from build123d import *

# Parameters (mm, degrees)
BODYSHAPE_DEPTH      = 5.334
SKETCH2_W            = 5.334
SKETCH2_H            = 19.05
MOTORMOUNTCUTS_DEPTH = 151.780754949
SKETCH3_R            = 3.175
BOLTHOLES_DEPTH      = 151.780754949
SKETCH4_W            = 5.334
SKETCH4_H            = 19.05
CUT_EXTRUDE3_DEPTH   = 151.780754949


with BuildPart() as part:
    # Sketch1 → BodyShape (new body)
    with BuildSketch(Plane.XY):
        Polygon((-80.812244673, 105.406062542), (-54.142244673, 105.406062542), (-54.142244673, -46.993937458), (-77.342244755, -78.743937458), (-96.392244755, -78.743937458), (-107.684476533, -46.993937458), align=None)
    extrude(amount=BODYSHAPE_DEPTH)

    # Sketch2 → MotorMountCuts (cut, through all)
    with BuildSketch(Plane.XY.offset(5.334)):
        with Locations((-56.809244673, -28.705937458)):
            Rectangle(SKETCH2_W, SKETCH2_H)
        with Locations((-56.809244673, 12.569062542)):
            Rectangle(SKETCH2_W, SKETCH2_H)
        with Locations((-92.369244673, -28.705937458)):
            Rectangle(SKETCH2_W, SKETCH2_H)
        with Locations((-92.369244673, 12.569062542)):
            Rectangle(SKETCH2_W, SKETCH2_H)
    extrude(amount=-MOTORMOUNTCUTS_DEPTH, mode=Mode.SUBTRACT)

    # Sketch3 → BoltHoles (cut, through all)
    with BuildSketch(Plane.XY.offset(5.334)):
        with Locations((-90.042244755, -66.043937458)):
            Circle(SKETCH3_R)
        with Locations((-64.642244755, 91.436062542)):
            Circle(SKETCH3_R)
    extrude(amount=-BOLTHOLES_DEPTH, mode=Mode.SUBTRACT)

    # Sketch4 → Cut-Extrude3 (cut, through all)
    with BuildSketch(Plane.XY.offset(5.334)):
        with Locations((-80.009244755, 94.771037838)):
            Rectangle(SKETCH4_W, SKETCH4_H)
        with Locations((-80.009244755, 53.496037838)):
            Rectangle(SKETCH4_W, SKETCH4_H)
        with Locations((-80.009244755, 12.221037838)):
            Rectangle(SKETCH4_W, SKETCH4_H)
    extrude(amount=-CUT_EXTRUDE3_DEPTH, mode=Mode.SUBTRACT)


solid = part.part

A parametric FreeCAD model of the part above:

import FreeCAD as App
import Part
import Sketcher
Q = App.Units.Quantity

doc = App.newDocument("Part")
body = doc.addObject("PartDesign::Body", "Body")

sketch1 = body.newObject("Sketcher::SketchObject", "Sketch")
sketch1.AttachmentSupport = (doc.getObject("XY_Plane"), [""])
sketch1.MapMode = "FlatFace"
sketch1.addGeometry([
    Part.LineSegment(App.Vector(-54, 105, 0), App.Vector(-81, 105, 0)),
    Part.LineSegment(App.Vector(-81, 105, 0), App.Vector(-108, -47, 0)),
    Part.LineSegment(App.Vector(-108, -47, 0), App.Vector(-96, -79, 0)),
    Part.LineSegment(App.Vector(-96, -79, 0), App.Vector(-77, -79, 0)),
    Part.LineSegment(App.Vector(-77, -79, 0), App.Vector(-54, -47, 0)),
    Part.LineSegment(App.Vector(-54, -47, 0), App.Vector(-54, 105, 0)),
], False)
sketch1.addConstraint([
    Sketcher.Constraint("Coincident", 0, 2, 1, 1),
    Sketcher.Constraint("Coincident", 1, 2, 2, 1),
    Sketcher.Constraint("Coincident", 2, 2, 3, 1),
    Sketcher.Constraint("Coincident", 3, 2, 4, 1),
    Sketcher.Constraint("Coincident", 4, 2, 5, 1),
    Sketcher.Constraint("Coincident", 5, 2, 0, 1),
    Sketcher.Constraint("Horizontal", 0),
    Sketcher.Constraint("Horizontal", 3),
    Sketcher.Constraint("Vertical", 5),
    Sketcher.Constraint("Horizontal", 1, 2, 4, 2),
    Sketcher.Constraint("DistanceY", 5, 1, 5, 2, Q("6 in")),
    Sketcher.Constraint("Angle", 1, Q("-100 deg")),
    Sketcher.Constraint("DistanceX", 0, 2, 0, 1, Q("1.05 in")),
    Sketcher.Constraint("DistanceX", 3, 1, 3, 2, Q("0.75 in")),
    Sketcher.Constraint("DistanceY", 2, 2, 1, 2, Q("1.25 in")),
    Sketcher.Constraint("DistanceX", 2, 2, 0, 2, Q("15.58 mm")),
    Sketcher.Constraint("DistanceX", 0, 2, -1, 1, Q("80.812245 mm")),
    Sketcher.Constraint("DistanceY", -1, 1, 0, 2, Q("105.406063 mm")),
])
pad1 = body.newObject("PartDesign::Pad", "Pad")
pad1.Profile = sketch1
pad1.Length = Q("0.21 in")

sketch2 = body.newObject("Sketcher::SketchObject", "Sketch001")
sketch2.AttachmentSupport = (doc.getObject("XY_Plane"), [""])
sketch2.MapMode = "FlatFace"
sketch2.AttachmentOffset = App.Placement(App.Vector(0, 0, 0.21 * 25.4), App.Rotation())
sketch2.addGeometry([
    Part.LineSegment(App.Vector(-59, -19, 0), App.Vector(-59, -38, 0)),
    Part.LineSegment(App.Vector(-59, -38, 0), App.Vector(-54, -38, 0)),
    Part.LineSegment(App.Vector(-54, -38, 0), App.Vector(-54, -19, 0)),
    Part.LineSegment(App.Vector(-54, -19, 0), App.Vector(-59, -19, 0)),
    Part.LineSegment(App.Vector(-59, 22, 0), App.Vector(-59, 3, 0)),
    Part.LineSegment(App.Vector(-59, 3, 0), App.Vector(-54, 3, 0)),
    Part.LineSegment(App.Vector(-54, 3, 0), App.Vector(-54, 22, 0)),
    Part.LineSegment(App.Vector(-54, 22, 0), App.Vector(-59, 22, 0)),
    Part.LineSegment(App.Vector(-95, -19, 0), App.Vector(-95, -38, 0)),
    Part.LineSegment(App.Vector(-95, -38, 0), App.Vector(-90, -38, 0)),
    Part.LineSegment(App.Vector(-90, -38, 0), App.Vector(-90, -19, 0)),
    Part.LineSegment(App.Vector(-90, -19, 0), App.Vector(-95, -19, 0)),
    Part.LineSegment(App.Vector(-95, 22, 0), App.Vector(-95, 3, 0)),
    Part.LineSegment(App.Vector(-95, 3, 0), App.Vector(-90, 3, 0)),
    Part.LineSegment(App.Vector(-90, 3, 0), App.Vector(-90, 22, 0)),
    Part.LineSegment(App.Vector(-90, 22, 0), App.Vector(-95, 22, 0)),
], False)
sketch2.addConstraint([
    Sketcher.Constraint("Coincident", 0, 2, 1, 1),
    Sketcher.Constraint("Coincident", 1, 2, 2, 1),
    Sketcher.Constraint("Coincident", 2, 2, 3, 1),
    Sketcher.Constraint("Coincident", 3, 2, 0, 1),
    Sketcher.Constraint("Coincident", 4, 2, 5, 1),
    Sketcher.Constraint("Coincident", 5, 2, 6, 1),
    Sketcher.Constraint("Coincident", 6, 2, 7, 1),
    Sketcher.Constraint("Coincident", 7, 2, 4, 1),
    Sketcher.Constraint("Coincident", 8, 2, 9, 1),
    Sketcher.Constraint("Coincident", 9, 2, 10, 1),
    Sketcher.Constraint("Coincident", 10, 2, 11, 1),
    Sketcher.Constraint("Coincident", 11, 2, 8, 1),
    Sketcher.Constraint("Coincident", 12, 2, 13, 1),
    Sketcher.Constraint("Coincident", 13, 2, 14, 1),
    Sketcher.Constraint("Coincident", 14, 2, 15, 1),
    Sketcher.Constraint("Coincident", 15, 2, 12, 1),
    Sketcher.Constraint("Vertical", 0),
    Sketcher.Constraint("Horizontal", 1),
    Sketcher.Constraint("Vertical", 2),
    Sketcher.Constraint("Horizontal", 3),
    Sketcher.Constraint("Vertical", 4),
    Sketcher.Constraint("Horizontal", 5),
    Sketcher.Constraint("Vertical", 6),
    Sketcher.Constraint("Horizontal", 7),
    Sketcher.Constraint("Vertical", 8),
    Sketcher.Constraint("Horizontal", 9),
    Sketcher.Constraint("Vertical", 10),
    Sketcher.Constraint("Horizontal", 11),
    Sketcher.Constraint("Vertical", 12),
    Sketcher.Constraint("Horizontal", 13),
    Sketcher.Constraint("Vertical", 14),
    Sketcher.Constraint("Horizontal", 15),
    Sketcher.Constraint("Horizontal", 1, 2, 8, 2),
    Sketcher.Constraint("Horizontal", 3, 2, 10, 2),
    Sketcher.Constraint("Horizontal", 5, 2, 12, 2),
    Sketcher.Constraint("Horizontal", 7, 2, 14, 2),
    Sketcher.Constraint("Vertical", 3, 2, 4, 2),
    Sketcher.Constraint("Vertical", 2, 2, 5, 2),
    Sketcher.Constraint("Vertical", 11, 2, 12, 2),
    Sketcher.Constraint("Vertical", 10, 2, 13, 2),
    Sketcher.Constraint("Equal", 7, 9),
    Sketcher.Constraint("Equal", 2, 4),
    Sketcher.Constraint("DistanceX", 1, 1, 1, 2, Q("0.21 in")),
    Sketcher.Constraint("DistanceY", 0, 2, 0, 1, Q("0.75 in")),
    Sketcher.Constraint("DistanceX", 8, 2, 0, 2, Q("1.4 in")),
    Sketcher.Constraint("DistanceY", 3, 2, 4, 2, Q("0.875 in")),
    Sketcher.Constraint("DistanceX", 0, 2, -1, 1, Q("59.476245 mm")),
    Sketcher.Constraint("DistanceY", 0, 2, -1, 1, Q("38.230937 mm")),
])
pocket1 = body.newObject("PartDesign::Pocket", "Pocket")
pocket1.Profile = sketch2
pocket1.Type = "ThroughAll"

sketch3 = body.newObject("Sketcher::SketchObject", "Sketch002")
sketch3.AttachmentSupport = (doc.getObject("XY_Plane"), [""])
sketch3.MapMode = "FlatFace"
sketch3.AttachmentOffset = App.Placement(App.Vector(0, 0, 0.21 * 25.4), App.Rotation())
sketch3.addGeometry([
    Part.Circle(App.Vector(-90, -66, 0), App.Vector(0, 0, 1), 3.2),
    Part.Circle(App.Vector(-64.6, 91.4, 0), App.Vector(0, 0, 1), 3.2),
], False)
sketch3.addConstraint([
    Sketcher.Constraint("Equal", 0, 1),
    Sketcher.Constraint("Diameter", 0, Q("0.25 in")),
    Sketcher.Constraint("DistanceX", 0, 3, 1, 3, Q("1 in")),
    Sketcher.Constraint("DistanceY", 0, 3, 1, 3, Q("6.2 in")),
    Sketcher.Constraint("DistanceX", 0, 3, -1, 1, Q("90.042245 mm")),
    Sketcher.Constraint("DistanceY", 0, 3, -1, 1, Q("66.043937 mm")),
])
pocket2 = body.newObject("PartDesign::Pocket", "Pocket001")
pocket2.Profile = sketch3
pocket2.Type = "ThroughAll"

sketch4 = body.newObject("Sketcher::SketchObject", "Sketch003")
sketch4.AttachmentSupport = (doc.getObject("XY_Plane"), [""])
sketch4.MapMode = "FlatFace"
sketch4.AttachmentOffset = App.Placement(App.Vector(0, 0, 0.21 * 25.4), App.Rotation())
sketch4.addGeometry([
    Part.LineSegment(App.Vector(-83, 104, 0), App.Vector(-83, 85, 0)),
    Part.LineSegment(App.Vector(-83, 85, 0), App.Vector(-77, 85, 0)),
    Part.LineSegment(App.Vector(-77, 85, 0), App.Vector(-77, 104, 0)),
    Part.LineSegment(App.Vector(-77, 104, 0), App.Vector(-83, 104, 0)),
    Part.LineSegment(App.Vector(-83, 63, 0), App.Vector(-83, 44, 0)),
    Part.LineSegment(App.Vector(-83, 44, 0), App.Vector(-77, 44, 0)),
    Part.LineSegment(App.Vector(-77, 44, 0), App.Vector(-77, 63, 0)),
    Part.LineSegment(App.Vector(-77, 63, 0), App.Vector(-83, 63, 0)),
    Part.LineSegment(App.Vector(-83, 22, 0), App.Vector(-83, 3, 0)),
    Part.LineSegment(App.Vector(-83, 3, 0), App.Vector(-77, 3, 0)),
    Part.LineSegment(App.Vector(-77, 3, 0), App.Vector(-77, 22, 0)),
    Part.LineSegment(App.Vector(-77, 22, 0), App.Vector(-83, 22, 0)),
], False)
sketch4.addConstraint([
    Sketcher.Constraint("Coincident", 0, 2, 1, 1),
    Sketcher.Constraint("Coincident", 1, 2, 2, 1),
    Sketcher.Constraint("Coincident", 2, 2, 3, 1),
    Sketcher.Constraint("Coincident", 3, 2, 0, 1),
    Sketcher.Constraint("Coincident", 4, 2, 5, 1),
    Sketcher.Constraint("Coincident", 5, 2, 6, 1),
    Sketcher.Constraint("Coincident", 6, 2, 7, 1),
    Sketcher.Constraint("Coincident", 7, 2, 4, 1),
    Sketcher.Constraint("Coincident", 8, 2, 9, 1),
    Sketcher.Constraint("Coincident", 9, 2, 10, 1),
    Sketcher.Constraint("Coincident", 10, 2, 11, 1),
    Sketcher.Constraint("Coincident", 11, 2, 8, 1),
    Sketcher.Constraint("Vertical", 0),
    Sketcher.Constraint("Horizontal", 1),
    Sketcher.Constraint("Vertical", 2),
    Sketcher.Constraint("Horizontal", 3),
    Sketcher.Constraint("Vertical", 4),
    Sketcher.Constraint("Horizontal", 5),
    Sketcher.Constraint("Vertical", 6),
    Sketcher.Constraint("Horizontal", 7),
    Sketcher.Constraint("Vertical", 8),
    Sketcher.Constraint("Horizontal", 9),
    Sketcher.Constraint("Vertical", 10),
    Sketcher.Constraint("Horizontal", 11),
    Sketcher.Constraint("Vertical", 3, 2, 4, 2),
    Sketcher.Constraint("Vertical", 2, 2, 5, 2),
    Sketcher.Constraint("Vertical", 7, 2, 8, 2),
    Sketcher.Constraint("Vertical", 6, 2, 9, 2),
    Sketcher.Constraint("Equal", 2, 4),
    Sketcher.Constraint("Equal", 6, 8),
    Sketcher.Constraint("DistanceX", 1, 1, 1, 2, Q("0.21 in")),
    Sketcher.Constraint("DistanceY", 0, 2, 0, 1, Q("0.75 in")),
    Sketcher.Constraint("DistanceY", 8, 2, 0, 2, Q("3.25 in")),
    Sketcher.Constraint("DistanceY", 4, 2, 0, 2, Q("1.625 in")),
    Sketcher.Constraint("DistanceX", 0, 2, -1, 1, Q("82.676245 mm")),
    Sketcher.Constraint("DistanceY", -1, 1, 0, 2, Q("85.246038 mm")),
])
pocket3 = body.newObject("PartDesign::Pocket", "Pocket002")
pocket3.Profile = sketch4
pocket3.Type = "ThroughAll"

doc.recompute()
